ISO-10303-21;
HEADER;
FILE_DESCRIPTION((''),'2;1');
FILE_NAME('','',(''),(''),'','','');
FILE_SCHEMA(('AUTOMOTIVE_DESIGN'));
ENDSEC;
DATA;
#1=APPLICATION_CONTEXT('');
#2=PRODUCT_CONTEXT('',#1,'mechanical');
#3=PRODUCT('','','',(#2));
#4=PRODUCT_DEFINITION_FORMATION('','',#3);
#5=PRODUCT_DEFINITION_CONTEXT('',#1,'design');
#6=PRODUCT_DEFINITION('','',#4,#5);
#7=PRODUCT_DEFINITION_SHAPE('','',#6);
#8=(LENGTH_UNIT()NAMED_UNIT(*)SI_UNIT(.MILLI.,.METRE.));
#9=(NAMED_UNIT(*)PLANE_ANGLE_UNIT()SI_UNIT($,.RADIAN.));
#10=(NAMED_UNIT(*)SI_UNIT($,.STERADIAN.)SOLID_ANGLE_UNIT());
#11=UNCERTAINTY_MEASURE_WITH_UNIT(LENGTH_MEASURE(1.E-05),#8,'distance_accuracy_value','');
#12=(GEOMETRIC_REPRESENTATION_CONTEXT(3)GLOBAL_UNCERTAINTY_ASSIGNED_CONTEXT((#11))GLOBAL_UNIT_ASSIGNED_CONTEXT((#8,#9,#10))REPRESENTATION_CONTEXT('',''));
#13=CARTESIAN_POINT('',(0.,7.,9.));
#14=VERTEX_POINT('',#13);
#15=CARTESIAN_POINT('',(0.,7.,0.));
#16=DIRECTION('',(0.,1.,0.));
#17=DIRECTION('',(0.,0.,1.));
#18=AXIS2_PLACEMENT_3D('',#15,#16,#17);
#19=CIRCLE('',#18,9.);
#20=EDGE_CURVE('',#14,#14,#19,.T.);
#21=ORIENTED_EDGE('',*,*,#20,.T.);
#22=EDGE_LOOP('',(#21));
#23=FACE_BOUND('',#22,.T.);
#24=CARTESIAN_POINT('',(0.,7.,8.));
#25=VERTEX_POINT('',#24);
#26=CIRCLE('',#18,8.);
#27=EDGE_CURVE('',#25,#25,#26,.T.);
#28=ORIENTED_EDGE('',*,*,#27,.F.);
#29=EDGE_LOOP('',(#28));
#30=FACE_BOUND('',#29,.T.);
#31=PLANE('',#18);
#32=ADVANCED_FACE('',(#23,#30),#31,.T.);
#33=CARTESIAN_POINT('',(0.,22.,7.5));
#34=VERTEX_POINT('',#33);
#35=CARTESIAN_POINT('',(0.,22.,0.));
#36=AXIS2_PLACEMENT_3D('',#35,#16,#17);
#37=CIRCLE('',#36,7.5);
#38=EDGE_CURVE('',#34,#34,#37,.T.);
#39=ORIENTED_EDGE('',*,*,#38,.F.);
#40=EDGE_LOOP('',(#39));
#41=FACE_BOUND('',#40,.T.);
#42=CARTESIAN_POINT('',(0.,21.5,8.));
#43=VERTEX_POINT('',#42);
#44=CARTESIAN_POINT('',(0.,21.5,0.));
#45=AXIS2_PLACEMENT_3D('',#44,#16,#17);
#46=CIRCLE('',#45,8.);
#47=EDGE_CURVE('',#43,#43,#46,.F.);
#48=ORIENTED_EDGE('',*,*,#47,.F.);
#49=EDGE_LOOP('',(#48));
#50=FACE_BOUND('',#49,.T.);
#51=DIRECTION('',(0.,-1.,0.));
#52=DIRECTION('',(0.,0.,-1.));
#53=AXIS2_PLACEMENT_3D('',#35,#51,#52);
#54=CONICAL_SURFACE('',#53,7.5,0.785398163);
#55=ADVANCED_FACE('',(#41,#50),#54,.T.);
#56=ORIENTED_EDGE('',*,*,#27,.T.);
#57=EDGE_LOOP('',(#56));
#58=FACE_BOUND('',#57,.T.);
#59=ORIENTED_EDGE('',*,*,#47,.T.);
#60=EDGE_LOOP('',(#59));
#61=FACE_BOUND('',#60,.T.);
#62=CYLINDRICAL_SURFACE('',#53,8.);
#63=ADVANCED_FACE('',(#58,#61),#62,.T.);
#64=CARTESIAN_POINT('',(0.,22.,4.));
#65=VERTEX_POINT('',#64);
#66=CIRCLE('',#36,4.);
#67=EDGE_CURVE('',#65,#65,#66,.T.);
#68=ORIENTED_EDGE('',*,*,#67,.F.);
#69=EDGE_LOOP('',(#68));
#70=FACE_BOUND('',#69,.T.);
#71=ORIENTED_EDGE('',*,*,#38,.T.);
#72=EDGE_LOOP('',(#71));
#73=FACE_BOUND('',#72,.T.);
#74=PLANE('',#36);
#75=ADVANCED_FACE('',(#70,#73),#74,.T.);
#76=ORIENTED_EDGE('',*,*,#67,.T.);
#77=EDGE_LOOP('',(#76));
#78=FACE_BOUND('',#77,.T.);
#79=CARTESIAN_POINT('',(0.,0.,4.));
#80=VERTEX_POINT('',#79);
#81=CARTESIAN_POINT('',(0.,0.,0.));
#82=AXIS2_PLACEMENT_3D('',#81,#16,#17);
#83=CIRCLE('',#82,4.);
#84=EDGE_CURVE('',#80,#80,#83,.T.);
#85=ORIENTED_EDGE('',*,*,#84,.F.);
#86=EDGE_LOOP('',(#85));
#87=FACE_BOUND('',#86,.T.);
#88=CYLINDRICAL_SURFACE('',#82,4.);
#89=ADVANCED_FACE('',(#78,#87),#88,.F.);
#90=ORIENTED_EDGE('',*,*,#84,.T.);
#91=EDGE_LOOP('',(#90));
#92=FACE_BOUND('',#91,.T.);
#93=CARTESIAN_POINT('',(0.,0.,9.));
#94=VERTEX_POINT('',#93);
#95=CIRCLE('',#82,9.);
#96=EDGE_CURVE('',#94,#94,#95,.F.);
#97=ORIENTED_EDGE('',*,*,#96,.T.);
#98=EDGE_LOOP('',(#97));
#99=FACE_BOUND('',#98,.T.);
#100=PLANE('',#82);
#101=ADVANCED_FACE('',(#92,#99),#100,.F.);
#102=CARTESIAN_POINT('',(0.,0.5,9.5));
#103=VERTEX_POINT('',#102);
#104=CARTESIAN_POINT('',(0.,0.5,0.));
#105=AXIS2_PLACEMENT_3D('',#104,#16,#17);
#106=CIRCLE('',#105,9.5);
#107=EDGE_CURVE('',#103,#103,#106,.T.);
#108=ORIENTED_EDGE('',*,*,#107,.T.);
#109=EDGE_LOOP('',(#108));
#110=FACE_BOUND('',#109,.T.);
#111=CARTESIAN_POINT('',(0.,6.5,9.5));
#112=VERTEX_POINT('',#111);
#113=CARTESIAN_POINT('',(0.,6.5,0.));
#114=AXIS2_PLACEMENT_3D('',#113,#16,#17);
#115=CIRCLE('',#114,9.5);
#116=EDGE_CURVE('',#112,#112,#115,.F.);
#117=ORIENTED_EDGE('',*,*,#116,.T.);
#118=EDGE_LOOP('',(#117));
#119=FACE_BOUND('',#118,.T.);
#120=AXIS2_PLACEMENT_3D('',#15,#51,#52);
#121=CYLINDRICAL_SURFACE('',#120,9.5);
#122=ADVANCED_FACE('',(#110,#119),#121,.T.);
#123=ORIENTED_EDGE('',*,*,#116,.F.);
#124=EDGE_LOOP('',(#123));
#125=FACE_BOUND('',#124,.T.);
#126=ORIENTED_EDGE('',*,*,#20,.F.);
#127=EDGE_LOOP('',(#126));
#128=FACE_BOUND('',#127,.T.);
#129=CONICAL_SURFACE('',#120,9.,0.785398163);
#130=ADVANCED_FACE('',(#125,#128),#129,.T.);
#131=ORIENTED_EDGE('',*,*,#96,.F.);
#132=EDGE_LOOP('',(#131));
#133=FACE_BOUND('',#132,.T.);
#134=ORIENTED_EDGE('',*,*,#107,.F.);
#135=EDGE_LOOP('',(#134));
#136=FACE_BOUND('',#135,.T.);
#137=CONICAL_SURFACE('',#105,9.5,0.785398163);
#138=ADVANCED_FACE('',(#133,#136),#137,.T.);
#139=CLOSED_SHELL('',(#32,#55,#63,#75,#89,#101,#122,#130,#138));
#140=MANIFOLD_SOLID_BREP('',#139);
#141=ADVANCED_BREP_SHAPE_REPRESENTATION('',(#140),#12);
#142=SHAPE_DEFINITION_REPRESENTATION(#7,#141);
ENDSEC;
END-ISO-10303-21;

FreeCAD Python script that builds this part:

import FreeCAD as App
import Part
import Sketcher
Q = App.Units.Quantity


def edges_at(feature, points):
    """Names of the edges that pass closest to the given points."""
    edges = feature.Shape.Edges
    near = lambda p: min(range(len(edges)), key=lambda i: edges[i].distToShape(Part.Vertex(*p))[0])
    return sorted({f"Edge{near(p) + 1}" for p in points})

doc = App.newDocument("Part")
body = doc.addObject("PartDesign::Body", "Body")

# Sketch on XZ plane
sketch1 = doc.addObject("Sketcher::SketchObject", "Sketch")
body.addObject(sketch1)
sketch1.AttachmentSupport = (doc.XZ_Plane, [""])
sketch1.MapMode = "FlatFace"
sketch1.addGeometry(Part.Circle(App.Vector(0, 0, 0), App.Vector(0, 0, 1), 10), False)
sketch1.addConstraint(Sketcher.Constraint("Coincident", 0, 3, -1, 1))
sketch1.addConstraint(Sketcher.Constraint("Diameter", 0, Q("19 mm")))
pad1 = doc.addObject("PartDesign::Pad", "Pad")
body.addObject(pad1)
pad1.Profile = sketch1
pad1.Length = 7
pad1.Reversed = True

# Sketch on XZ plane
sketch2 = doc.addObject("Sketcher::SketchObject", "Sketch001")
body.addObject(sketch2)
sketch2.AttachmentSupport = (doc.XZ_Plane, [""])
sketch2.MapMode = "FlatFace"
sketch2.AttachmentOffset = App.Placement(App.Vector(0, 0, -7), App.Rotation())
sketch2.addGeometry(Part.Circle(App.Vector(0, 0, 0), App.Vector(0, 0, 1), 8), False)
sketch2.addConstraint(Sketcher.Constraint("Coincident", 0, 3, -1, 1))
sketch2.addConstraint(Sketcher.Constraint("Diameter", 0, Q("16 mm")))
pad2 = doc.addObject("PartDesign::Pad", "Pad001")
body.addObject(pad2)
pad2.Profile = sketch2
pad2.Length = 15
pad2.Reversed = True

# Sketch on XZ plane
sketch3 = doc.addObject("Sketcher::SketchObject", "Sketch002")
body.addObject(sketch3)
sketch3.AttachmentSupport = (doc.XZ_Plane, [""])
sketch3.MapMode = "FlatFace"
sketch3.AttachmentOffset = App.Placement(App.Vector(0, 0, -22), App.Rotation())
sketch3.addGeometry(Part.Circle(App.Vector(0, 0, 0), App.Vector(0, 0, 1), 4), False)
sketch3.addConstraint(Sketcher.Constraint("Coincident", 0, 3, -1, 1))
sketch3.addConstraint(Sketcher.Constraint("Diameter", 0, Q("8 mm")))
pocket1 = doc.addObject("PartDesign::Pocket", "Pocket")
body.addObject(pocket1)
pocket1.Profile = sketch3
pocket1.Type = "ThroughAll"
pocket1.Reversed = True
doc.recompute()

chamfer = doc.addObject("PartDesign::Chamfer", "Chamfer")
body.addObject(chamfer)
chamfer.Base = (pocket1, edges_at(pocket1, [(0, 0, -9.5), (0, 7, -9.5), (0, 22, -8)]))
chamfer.Size = 0.5

doc.recompute()
